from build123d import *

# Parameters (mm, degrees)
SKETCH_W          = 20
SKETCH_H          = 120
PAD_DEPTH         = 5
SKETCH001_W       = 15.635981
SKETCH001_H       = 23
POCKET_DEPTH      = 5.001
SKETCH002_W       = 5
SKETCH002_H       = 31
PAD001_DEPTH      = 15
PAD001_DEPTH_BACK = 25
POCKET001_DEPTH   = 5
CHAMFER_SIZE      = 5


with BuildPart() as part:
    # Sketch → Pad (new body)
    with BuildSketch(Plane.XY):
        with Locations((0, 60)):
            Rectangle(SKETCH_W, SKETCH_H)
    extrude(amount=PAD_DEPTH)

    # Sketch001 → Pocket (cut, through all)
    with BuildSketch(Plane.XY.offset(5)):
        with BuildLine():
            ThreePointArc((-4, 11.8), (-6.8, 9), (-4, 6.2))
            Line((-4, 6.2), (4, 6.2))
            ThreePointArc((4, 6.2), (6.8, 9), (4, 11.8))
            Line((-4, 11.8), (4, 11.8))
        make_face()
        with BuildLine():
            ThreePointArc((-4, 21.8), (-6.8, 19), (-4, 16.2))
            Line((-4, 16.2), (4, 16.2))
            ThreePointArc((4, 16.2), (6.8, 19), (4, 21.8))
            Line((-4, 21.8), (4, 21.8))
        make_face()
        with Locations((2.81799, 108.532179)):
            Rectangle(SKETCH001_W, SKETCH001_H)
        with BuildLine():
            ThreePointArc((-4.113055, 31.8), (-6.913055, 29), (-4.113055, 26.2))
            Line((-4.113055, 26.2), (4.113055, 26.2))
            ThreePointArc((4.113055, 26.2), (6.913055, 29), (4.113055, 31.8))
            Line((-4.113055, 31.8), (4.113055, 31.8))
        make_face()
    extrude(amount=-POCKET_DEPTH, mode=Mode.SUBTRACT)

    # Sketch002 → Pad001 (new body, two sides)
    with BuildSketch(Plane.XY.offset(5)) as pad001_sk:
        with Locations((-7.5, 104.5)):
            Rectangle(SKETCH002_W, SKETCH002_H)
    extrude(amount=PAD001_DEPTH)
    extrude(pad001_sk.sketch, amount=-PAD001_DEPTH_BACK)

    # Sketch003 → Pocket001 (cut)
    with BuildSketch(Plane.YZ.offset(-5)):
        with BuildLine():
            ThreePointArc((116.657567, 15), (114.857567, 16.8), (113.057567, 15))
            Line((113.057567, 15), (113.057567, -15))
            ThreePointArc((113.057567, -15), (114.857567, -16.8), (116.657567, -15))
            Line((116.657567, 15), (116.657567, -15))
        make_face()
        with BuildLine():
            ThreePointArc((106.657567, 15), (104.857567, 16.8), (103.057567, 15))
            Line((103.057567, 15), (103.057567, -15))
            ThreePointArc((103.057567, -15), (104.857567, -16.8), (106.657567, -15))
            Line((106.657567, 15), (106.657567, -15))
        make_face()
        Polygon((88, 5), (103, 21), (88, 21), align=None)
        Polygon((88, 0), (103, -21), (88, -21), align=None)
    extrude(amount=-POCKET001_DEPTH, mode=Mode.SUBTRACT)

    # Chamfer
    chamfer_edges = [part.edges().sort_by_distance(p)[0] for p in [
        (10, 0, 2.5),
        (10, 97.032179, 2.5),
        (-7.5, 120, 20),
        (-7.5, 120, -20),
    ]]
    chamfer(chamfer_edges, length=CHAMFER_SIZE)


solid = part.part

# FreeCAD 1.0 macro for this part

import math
import FreeCAD as App
import Part
import Sketcher
Q = App.Units.Quantity


def edges_at(feature, points):
    """Names of the edges that pass closest to the given points."""
    edges = feature.Shape.Edges
    near = lambda p: min(range(len(edges)), key=lambda i: edges[i].distToShape(Part.Vertex(*p))[0])
    return sorted({f"Edge{near(p) + 1}" for p in points})


def add_polygon(sketch, points):
    """Adds a closed chain of lines whose ends are joined by coincident constraints."""
    first, n = sketch.GeometryCount, len(points)
    for a, b in zip(points, points[1:] + points[:1]):
        sketch.addGeometry(Part.LineSegment(App.Vector(*a, 0), App.Vector(*b, 0)), False)
    for i in range(n):
        sketch.addConstraint(Sketcher.Constraint("Coincident", first + i, 2, first + (i + 1) % n, 1))

doc = App.newDocument("Part")
params = doc.addObject("Spreadsheet::Sheet", "Params")
for row, (alias, value) in enumerate([
    ("sketch1_width", "20 mm"),
    ("sketch1_height", "120 mm"),
    ("pad1_length", "5 mm"),
    ("sketch2_radius", "2.8 mm"),
    ("sketch2_width", "8 mm"),
    ("sketch2_height", "23 mm"),
    ("sketch3_width", "5 mm"),
    ("sketch3_height", "31 mm"),
    ("pad2_length", "15 mm"),
    ("pad2_length2", "25 mm"),
    ("sketch4_radius", "1.8 mm"),
    ("sketch4_width", "15 mm"),
    ("sketch4_height", "30 mm"),
    ("sketch4_height2", "16 mm"),
    ("sketch4_height3", "21 mm"),
    ("pocket2_length", "5 mm"),
    ("chamfer_size", "5 mm"),
], start=1):
    params.set(f"A{row}", alias)
    params.set(f"B{row}", "=" + value)
    params.setAlias(f"B{row}", alias)

body = doc.addObject("PartDesign::Body", "Body")

# Sketch on XY plane
sketch1 = doc.addObject("Sketcher::SketchObject", "Sketch")
body.addObject(sketch1)
sketch1.AttachmentSupport = (doc.XY_Plane, [""])
sketch1.MapMode = "FlatFace"
add_polygon(sketch1, [(-10, 120), (-10, 0), (10, 0), (10, 120)])  # lines 0-3
sketch1.addConstraint([
    Sketcher.Constraint("Vertical", 0),
    Sketcher.Constraint("Horizontal", 1),
    Sketcher.Constraint("Vertical", 2),
    Sketcher.Constraint("Horizontal", 3),
    Sketcher.Constraint("Symmetric", 0, 2, 1, 2, -1, 1),
    Sketcher.Constraint("DistanceX", 1, 1, 1, 2, Q("20 mm")),
    Sketcher.Constraint("DistanceY", 0, 2, 0, 1, Q("120 mm")),
])
sketch1.setExpression("Constraints[9]", "Params.sketch1_width")
sketch1.setExpression("Constraints[10]", "Params.sketch1_height")
pad1 = doc.addObject("PartDesign::Pad", "Pad")
body.addObject(pad1)
pad1.Profile = sketch1
pad1.setExpression("Length", "Params.pad1_length")

# Sketch on XY plane
sketch2 = doc.addObject("Sketcher::SketchObject", "Sketch001")
body.addObject(sketch2)
sketch2.AttachmentSupport = (doc.XY_Plane, [""])
sketch2.MapMode = "FlatFace"
sketch2.AttachmentOffset = App.Placement(App.Vector(0, 0, 5), App.Rotation())
sketch2.addGeometry(Part.ArcOfCircle(Part.Circle(App.Vector(-4, 9, 0), App.Vector(0, 0, 1), 2.8), math.radians(90), math.radians(270)), False)  # 0
sketch2.addGeometry(Part.LineSegment(App.Vector(-4, 6.2, 0), App.Vector(4, 6.2, 0)), False)  # 1
sketch2.addGeometry(Part.ArcOfCircle(Part.Circle(App.Vector(4, 9, 0), App.Vector(0, 0, 1), 2.8), math.radians(-90), math.radians(90)), False)  # 2
sketch2.addGeometry(Part.LineSegment(App.Vector(4, 11.8, 0), App.Vector(-4, 11.8, 0)), False)  # 3
sketch2.addGeometry(Part.ArcOfCircle(Part.Circle(App.Vector(-4, 19, 0), App.Vector(0, 0, 1), 2.8), math.radians(90), math.radians(270)), False)  # 4
sketch2.addGeometry(Part.LineSegment(App.Vector(-4, 16.2, 0), App.Vector(4, 16.2, 0)), False)  # 5
sketch2.addGeometry(Part.ArcOfCircle(Part.Circle(App.Vector(4, 19, 0), App.Vector(0, 0, 1), 2.8), math.radians(-90), math.radians(90)), False)  # 6
sketch2.addGeometry(Part.LineSegment(App.Vector(4, 21.8, 0), App.Vector(-4, 21.8, 0)), False)  # 7
add_polygon(sketch2, [(-5, 120), (-5, 97), (10.6, 97), (10.6, 120)])  # lines 8-11
sketch2.addGeometry(Part.ArcOfCircle(Part.Circle(App.Vector(-4.1, 29, 0), App.Vector(0, 0, 1), 2.8), math.radians(90), math.radians(270)), False)  # 12
sketch2.addGeometry(Part.LineSegment(App.Vector(-4.1, 26.2, 0), App.Vector(4.1, 26.2, 0)), False)  # 13
sketch2.addGeometry(Part.ArcOfCircle(Part.Circle(App.Vector(4.1, 29, 0), App.Vector(0, 0, 1), 2.8), math.radians(-90), math.radians(90)), False)  # 14
sketch2.addGeometry(Part.LineSegment(App.Vector(4.1, 31.8, 0), App.Vector(-4.1, 31.8, 0)), False)  # 15
sketch2.addConstraint([
    Sketcher.Constraint("Tangent", 0, 2, 1, 1),
    Sketcher.Constraint("Tangent", 1, 2, 2, 1),
    Sketcher.Constraint("Tangent", 2, 2, 3, 1),
    Sketcher.Constraint("Tangent", 3, 2, 0, 1),
    Sketcher.Constraint("Tangent", 4, 2, 5, 1),
    Sketcher.Constraint("Tangent", 5, 2, 6, 1),
    Sketcher.Constraint("Tangent", 6, 2, 7, 1),
    Sketcher.Constraint("Tangent", 7, 2, 4, 1),
    Sketcher.Constraint("Tangent", 12, 2, 13, 1),
    Sketcher.Constraint("Tangent", 13, 2, 14, 1),
    Sketcher.Constraint("Tangent", 14, 2, 15, 1),
    Sketcher.Constraint("Tangent", 15, 2, 12, 1),
    Sketcher.Constraint("Horizontal", 1),
    Sketcher.Constraint("Horizontal", 3),
    Sketcher.Constraint("Horizontal", 5),
    Sketcher.Constraint("Horizontal", 7),
    Sketcher.Constraint("Vertical", 8),
    Sketcher.Constraint("Horizontal", 9),
    Sketcher.Constraint("Vertical", 10),
    Sketcher.Constraint("Horizontal", 11),
    Sketcher.Constraint("Horizontal", 13),
    Sketcher.Constraint("Horizontal", 15),
    Sketcher.Constraint("Equal", 2, 4),
    Sketcher.Constraint("Equal", 6, 12),
    Sketcher.Constraint("Vertical", 0, 3, 4, 3),
    Sketcher.Constraint("Vertical", 2, 3, 6, 3),
    Sketcher.Constraint("Radius", 0, Q("2.8 mm")),
    Sketcher.Constraint("DistanceX", 1, 1, 1, 2, Q("8 mm")),
    Sketcher.Constraint("DistanceY", 8, 2, 8, 1, Q("23 mm")),
    Sketcher.Constraint("DistanceX", 0, 3, -1, 1, Q("4 mm")),
    Sketcher.Constraint("DistanceY", -1, 1, 0, 3, Q("9 mm")),
    Sketcher.Constraint("DistanceY", -1, 1, 4, 3, Q("19 mm")),
    Sketcher.Constraint("DistanceY", -1, 1, 12, 3, Q("29 mm")),
    Sketcher.Constraint("DistanceX", 8, 2, -1, 1, Q("5 mm")),
    Sketcher.Constraint("DistanceX", 9, 1, 9, 2, Q("15.635981 mm")),
    Sketcher.Constraint("DistanceX", 13, 1, 13, 2, Q("8.22611 mm")),
    Sketcher.Constraint("DistanceY", -1, 1, 8, 2, Q("97.032179 mm")),
    Sketcher.Constraint("DistanceX", 12, 3, -1, 1, Q("4.113055 mm")),
])
sketch2.setExpression("Constraints[30]", "Params.sketch2_radius")
sketch2.setExpression("Constraints[31]", "Params.sketch2_width")
sketch2.setExpression("Constraints[32]", "Params.sketch2_height")
pocket1 = doc.addObject("PartDesign::Pocket", "Pocket")
body.addObject(pocket1)
pocket1.Profile = sketch2
pocket1.Type = "ThroughAll"

# Sketch on XY plane
sketch3 = doc.addObject("Sketcher::SketchObject", "Sketch002")
body.addObject(sketch3)
sketch3.AttachmentSupport = (doc.XY_Plane, [""])
sketch3.MapMode = "FlatFace"
sketch3.AttachmentOffset = App.Placement(App.Vector(0, 0, 5), App.Rotation())
add_polygon(sketch3, [(-10, 120), (-10, 89), (-5, 89), (-5, 120)])  # lines 0-3
sketch3.addConstraint([
    Sketcher.Constraint("Vertical", 0),
    Sketcher.Constraint("Horizontal", 1),
    Sketcher.Constraint("Vertical", 2),
    Sketcher.Constraint("Horizontal", 3),
    Sketcher.Constraint("DistanceX", 1, 1, 1, 2, Q("5 mm")),
    Sketcher.Constraint("DistanceY", 0, 2, 0, 1, Q("31 mm")),
    Sketcher.Constraint("DistanceX", 0, 2, -1, 1, Q("10 mm")),
    Sketcher.Constraint("DistanceY", -1, 1, 0, 2, Q("89 mm")),
])
sketch3.setExpression("Constraints[8]", "Params.sketch3_width")
sketch3.setExpression("Constraints[9]", "Params.sketch3_height")
pad2 = doc.addObject("PartDesign::Pad", "Pad001")
body.addObject(pad2)
pad2.Profile = sketch3
pad2.Type = "TwoLengths"
pad2.setExpression("Length", "Params.pad2_length")
pad2.setExpression("Length2", "Params.pad2_length2")

# Sketch on YZ plane
sketch4 = doc.addObject("Sketcher::SketchObject", "Sketch003")
body.addObject(sketch4)
sketch4.AttachmentSupport = (doc.YZ_Plane, [""])
sketch4.MapMode = "FlatFace"
sketch4.AttachmentOffset = App.Placement(App.Vector(0, 0, -5), App.Rotation())
sketch4.addGeometry(Part.ArcOfCircle(Part.Circle(App.Vector(114.9, 15, 0), App.Vector(0, 0, 1), 1.8), math.radians(0), math.radians(180)), False)  # 0
sketch4.addGeometry(Part.LineSegment(App.Vector(113.1, 15, 0), App.Vector(113.1, -15, 0)), False)  # 1
sketch4.addGeometry(Part.ArcOfCircle(Part.Circle(App.Vector(114.9, -15, 0), App.Vector(0, 0, 1), 1.8), math.radians(180), math.radians(360)), False)  # 2
sketch4.addGeometry(Part.LineSegment(App.Vector(116.7, -15, 0), App.Vector(116.7, 15, 0)), False)  # 3
sketch4.addGeometry(Part.ArcOfCircle(Part.Circle(App.Vector(104.9, 15, 0), App.Vector(0, 0, 1), 1.8), math.radians(0), math.radians(180)), False)  # 4
sketch4.addGeometry(Part.LineSegment(App.Vector(103.1, 15, 0), App.Vector(103.1, -15, 0)), False)  # 5
sketch4.addGeometry(Part.ArcOfCircle(Part.Circle(App.Vector(104.9, -15, 0), App.Vector(0, 0, 1), 1.8), math.radians(180), math.radians(360)), False)  # 6
sketch4.addGeometry(Part.LineSegment(App.Vector(106.7, -15, 0), App.Vector(106.7, 15, 0)), False)  # 7
add_polygon(sketch4, [(88, 5), (103, 21), (88, 21)])  # lines 8-10
add_polygon(sketch4, [(103, -21), (88, 0), (88, -21)])  # lines 11-13
sketch4.addConstraint([
    Sketcher.Constraint("Tangent", 0, 2, 1, 1),
    Sketcher.Constraint("Tangent", 1, 2, 2, 1),
    Sketcher.Constraint("Tangent", 2, 2, 3, 1),
    Sketcher.Constraint("Tangent", 3, 2, 0, 1),
    Sketcher.Constraint("Tangent", 4, 2, 5, 1),
    Sketcher.Constraint("Tangent", 5, 2, 6, 1),
    Sketcher.Constraint("Tangent", 6, 2, 7, 1),
    Sketcher.Constraint("Tangent", 7, 2, 4, 1),
    Sketcher.Constraint("Vertical", 1),
    Sketcher.Constraint("Vertical", 3),
    Sketcher.Constraint("Vertical", 5),
    Sketcher.Constraint("Vertical", 7),
    Sketcher.Constraint("Horizontal", 9),
    Sketcher.Constraint("Vertical", 10),
    Sketcher.Constraint("Vertical", 12),
    Sketcher.Constraint("Horizontal", 13),
    Sketcher.Constraint("Equal", 2, 4),
    Sketcher.Constraint("Symmetric", 9, 2, 12, 2, -1),
    Sketcher.Constraint("PointOnObject", 11, 2, -1),
    Sketcher.Constraint("Horizontal", 0, 3, 4, 3),
    Sketcher.Constraint("Horizontal", 2, 3, 6, 3),
    Sketcher.Constraint("Vertical", 8, 2, 13, 2),
    Sketcher.Constraint("Radius", 0, Q("1.8 mm")),
    Sketcher.Constraint("DistanceX", 9, 2, 9, 1, Q("15 mm")),
    Sketcher.Constraint("DistanceY", 1, 2, 1, 1, Q("30 mm")),
    Sketcher.Constraint("DistanceY", 10, 2, 10, 1, Q("16 mm")),
    Sketcher.Constraint("DistanceY", 12, 2, 12, 1, Q("21 mm")),
    Sketcher.Constraint("DistanceY", -1, 1, 0, 3, Q("15 mm")),
    Sketcher.Constraint("DistanceX", -1, 1, 8, 2, Q("103 mm")),
    Sketcher.Constraint("DistanceX", 4, 3, 0, 3, Q("10 mm")),
    Sketcher.Constraint("DistanceX", -1, 1, 0, 3, Q("114.857567 mm")),
])
sketch4.setExpression("Constraints[28]", "Params.sketch4_radius")
sketch4.setExpression("Constraints[29]", "Params.sketch4_width")
sketch4.setExpression("Constraints[30]", "Params.sketch4_height")
sketch4.setExpression("Constraints[31]", "Params.sketch4_height2")
sketch4.setExpression("Constraints[32]", "Params.sketch4_height3")
pocket2 = doc.addObject("PartDesign::Pocket", "Pocket001")
body.addObject(pocket2)
pocket2.Profile = sketch4
pocket2.setExpression("Length", "Params.pocket2_length")
doc.recompute()

chamfer = doc.addObject("PartDesign::Chamfer", "Chamfer")
body.addObject(chamfer)
chamfer.Base = (pocket2, edges_at(pocket2, [
    (10, 0, 2.5),
    (10, 97.032, 2.5),
    (-7.5, 120, 20),
    (-7.5, 120, -20),
]))
chamfer.setExpression("Size", "Params.chamfer_size")

doc.recompute()
